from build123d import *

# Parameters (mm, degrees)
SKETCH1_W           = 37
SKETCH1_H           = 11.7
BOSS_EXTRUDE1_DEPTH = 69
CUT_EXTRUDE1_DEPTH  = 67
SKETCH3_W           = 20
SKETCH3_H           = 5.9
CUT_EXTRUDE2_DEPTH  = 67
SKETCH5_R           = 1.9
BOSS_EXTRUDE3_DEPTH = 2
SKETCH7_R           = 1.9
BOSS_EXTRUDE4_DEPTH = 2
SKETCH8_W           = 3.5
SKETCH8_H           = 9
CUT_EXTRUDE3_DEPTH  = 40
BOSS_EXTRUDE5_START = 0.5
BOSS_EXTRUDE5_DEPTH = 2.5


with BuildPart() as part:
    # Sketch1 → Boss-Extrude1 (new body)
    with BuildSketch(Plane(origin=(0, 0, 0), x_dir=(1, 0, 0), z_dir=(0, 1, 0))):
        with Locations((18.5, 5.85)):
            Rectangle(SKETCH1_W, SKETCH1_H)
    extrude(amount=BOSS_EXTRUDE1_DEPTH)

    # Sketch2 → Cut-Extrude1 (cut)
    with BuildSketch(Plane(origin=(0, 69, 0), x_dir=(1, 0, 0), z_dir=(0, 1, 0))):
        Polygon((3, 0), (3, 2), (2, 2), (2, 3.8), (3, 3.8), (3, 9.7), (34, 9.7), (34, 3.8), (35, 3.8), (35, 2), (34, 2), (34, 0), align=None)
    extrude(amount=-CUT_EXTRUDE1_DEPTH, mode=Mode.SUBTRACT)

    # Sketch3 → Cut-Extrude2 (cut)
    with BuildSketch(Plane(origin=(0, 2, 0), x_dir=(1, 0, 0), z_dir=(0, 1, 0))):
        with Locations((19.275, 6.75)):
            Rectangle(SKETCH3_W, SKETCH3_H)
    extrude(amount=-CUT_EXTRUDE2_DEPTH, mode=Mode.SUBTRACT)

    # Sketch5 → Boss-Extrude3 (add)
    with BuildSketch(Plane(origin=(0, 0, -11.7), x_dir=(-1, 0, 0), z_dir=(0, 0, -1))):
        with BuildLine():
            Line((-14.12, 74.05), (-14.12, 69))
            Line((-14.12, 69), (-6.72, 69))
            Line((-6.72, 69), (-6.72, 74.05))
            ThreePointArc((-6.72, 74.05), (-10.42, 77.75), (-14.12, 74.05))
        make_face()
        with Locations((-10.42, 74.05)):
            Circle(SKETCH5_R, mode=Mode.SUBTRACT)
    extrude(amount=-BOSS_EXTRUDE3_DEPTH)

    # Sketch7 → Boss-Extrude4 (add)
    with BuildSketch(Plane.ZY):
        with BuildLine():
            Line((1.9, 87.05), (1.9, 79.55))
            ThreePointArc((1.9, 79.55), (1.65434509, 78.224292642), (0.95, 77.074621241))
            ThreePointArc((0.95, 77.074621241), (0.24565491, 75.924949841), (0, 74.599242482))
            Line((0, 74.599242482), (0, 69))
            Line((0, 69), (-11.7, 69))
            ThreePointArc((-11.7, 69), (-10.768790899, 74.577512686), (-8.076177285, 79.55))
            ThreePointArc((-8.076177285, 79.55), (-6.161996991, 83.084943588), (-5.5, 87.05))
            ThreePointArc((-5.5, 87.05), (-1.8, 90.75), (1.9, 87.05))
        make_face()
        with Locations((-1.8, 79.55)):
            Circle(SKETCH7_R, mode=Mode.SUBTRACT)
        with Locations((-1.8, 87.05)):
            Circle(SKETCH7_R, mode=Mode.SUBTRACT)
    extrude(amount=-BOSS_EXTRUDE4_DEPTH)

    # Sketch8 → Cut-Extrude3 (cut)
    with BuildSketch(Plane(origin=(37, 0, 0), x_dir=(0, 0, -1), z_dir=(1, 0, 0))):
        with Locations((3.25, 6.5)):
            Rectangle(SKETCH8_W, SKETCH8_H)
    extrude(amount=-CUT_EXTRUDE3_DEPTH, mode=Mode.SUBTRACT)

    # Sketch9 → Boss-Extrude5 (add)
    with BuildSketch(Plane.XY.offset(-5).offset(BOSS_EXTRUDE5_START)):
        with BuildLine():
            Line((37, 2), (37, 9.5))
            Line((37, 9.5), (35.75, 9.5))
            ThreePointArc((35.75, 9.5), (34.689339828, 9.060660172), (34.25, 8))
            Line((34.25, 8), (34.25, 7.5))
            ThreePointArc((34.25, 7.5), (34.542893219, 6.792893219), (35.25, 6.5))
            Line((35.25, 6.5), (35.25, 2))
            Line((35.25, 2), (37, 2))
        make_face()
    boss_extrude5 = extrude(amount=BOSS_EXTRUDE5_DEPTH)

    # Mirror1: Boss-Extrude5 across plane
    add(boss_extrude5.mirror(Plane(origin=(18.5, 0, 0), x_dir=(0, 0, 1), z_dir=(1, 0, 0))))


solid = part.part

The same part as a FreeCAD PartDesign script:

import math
import FreeCAD as App
import Part
import Sketcher
Q = App.Units.Quantity


def add_polygon(sketch, points):
    """Adds a closed chain of lines whose ends are joined by coincident constraints."""
    first, n = sketch.GeometryCount, len(points)
    for a, b in zip(points, points[1:] + points[:1]):
        sketch.addGeometry(Part.LineSegment(App.Vector(*a, 0), App.Vector(*b, 0)), False)
    for i in range(n):
        sketch.addConstraint(Sketcher.Constraint("Coincident", first + i, 2, first + (i + 1) % n, 1))

doc = App.newDocument("Part")
params = doc.addObject("Spreadsheet::Sheet", "Params")
for row, (alias, value) in enumerate([
    ("sketch1_width", "37 mm"),
    ("sketch1_height", "11.7 mm"),
    ("pad1_length", "69 mm"),
    ("sketch2_width", "31 mm"),
    ("sketch2_width2", "1 mm"),
    ("sketch2_height", "2 mm"),
    ("sketch2_height2", "1.8 mm"),
    ("sketch2_height3", "5.9 mm"),
    ("pocket1_length", "67 mm"),
    ("sketch3_width", "20 mm"),
    ("sketch3_height", "5.9 mm"),
    ("pocket2_length", "67 mm"),
    ("sketch4_diameter", "3.8 mm"),
    ("sketch4_radius", "3.7 mm"),
    ("sketch4_height", "5.05 mm"),
    ("pad2_length", "2 mm"),
    ("sketch5_diameter", "3.8 mm"),
    ("sketch5_radius", "3.7 mm"),
    ("sketch5_width", "7.5 mm"),
    ("sketch5_height", "11.7 mm"),
    ("pad3_length", "2 mm"),
    ("sketch6_width", "9 mm"),
    ("sketch6_height", "3.5 mm"),
    ("pocket3_length", "40 mm"),
    ("sketch7_radius", "1 mm"),
    ("sketch7_radius2", "1.5 mm"),
    ("sketch7_height", "7.5 mm"),
    ("sketch7_height2", "0.5 mm"),
    ("sketch7_width", "1.25 mm"),
    ("pad4_length", "2.5 mm"),
], start=1):
    params.set(f"A{row}", alias)
    params.set(f"B{row}", "=" + value)
    params.setAlias(f"B{row}", alias)

body = doc.addObject("PartDesign::Body", "Body")

sketch1 = body.newObject("Sketcher::SketchObject", "Sketch")
sketch1.AttachmentSupport = (doc.getObject("XZ_Plane"), [""])
sketch1.MapMode = "FlatFace"
add_polygon(sketch1, [(0, -12), (0, 0), (37, 0), (37, -12)])
sketch1.addConstraint(Sketcher.Constraint("Vertical", 0))
sketch1.addConstraint(Sketcher.Constraint("Horizontal", 1))
sketch1.addConstraint(Sketcher.Constraint("Vertical", 2))
sketch1.addConstraint(Sketcher.Constraint("Horizontal", 3))
sketch1.addConstraint(Sketcher.Constraint("Coincident", 0, 2, -1, 1))
sketch1.addConstraint(Sketcher.Constraint("DistanceX", 1, 1, 1, 2, Q("37 mm")))
sketch1.addConstraint(Sketcher.Constraint("DistanceY", 0, 1, 0, 2, Q("11.7 mm")))
sketch1.setExpression("Constraints[9]", "Params.sketch1_width")
sketch1.setExpression("Constraints[10]", "Params.sketch1_height")
pad1 = body.newObject("PartDesign::Pad", "Pad")
pad1.Profile = sketch1
pad1.setExpression("Length", "Params.pad1_length")
pad1.Reversed = True

sketch2 = body.newObject("Sketcher::SketchObject", "Sketch001")
sketch2.AttachmentSupport = (doc.getObject("XZ_Plane"), [""])
sketch2.MapMode = "FlatFace"
sketch2.AttachmentOffset = App.Placement(App.Vector(0, 0, -69), App.Rotation())
add_polygon(sketch2, [(3, -2), (3, 0), (34, 0), (34, -2), (35, -2), (35, -3.8), (34, -3.8), (34, -9.7), (3, -9.7), (3, -3.8), (2, -3.8), (2, -2)])
sketch2.addConstraint(Sketcher.Constraint("Vertical", 0))
sketch2.addConstraint(Sketcher.Constraint("Horizontal", 1))
sketch2.addConstraint(Sketcher.Constraint("Vertical", 2))
sketch2.addConstraint(Sketcher.Constraint("Horizontal", 3))
sketch2.addConstraint(Sketcher.Constraint("Vertical", 4))
sketch2.addConstraint(Sketcher.Constraint("Horizontal", 5))
sketch2.addConstraint(Sketcher.Constraint("Vertical", 6))
sketch2.addConstraint(Sketcher.Constraint("Horizontal", 7))
sketch2.addConstraint(Sketcher.Constraint("Vertical", 8))
sketch2.addConstraint(Sketcher.Constraint("Horizontal", 9))
sketch2.addConstraint(Sketcher.Constraint("Vertical", 10))
sketch2.addConstraint(Sketcher.Constraint("Horizontal", 11))
sketch2.addConstraint(Sketcher.Constraint("PointOnObject", 0, 2, -1))
sketch2.addConstraint(Sketcher.Constraint("Horizontal", 5, 2, 8, 2))
sketch2.addConstraint(Sketcher.Constraint("Horizontal", 3, 2, 10, 2))
sketch2.addConstraint(Sketcher.Constraint("Vertical", 2, 2, 5, 2))
sketch2.addConstraint(Sketcher.Constraint("Vertical", 0, 2, 7, 2))
sketch2.addConstraint(Sketcher.Constraint("Equal", 5, 9))
sketch2.addConstraint(Sketcher.Constraint("DistanceX", 1, 1, 1, 2, Q("31 mm")))
sketch2.addConstraint(Sketcher.Constraint("DistanceX", 3, 1, 3, 2, Q("1 mm")))
sketch2.addConstraint(Sketcher.Constraint("DistanceY", 0, 1, 0, 2, Q("2 mm")))
sketch2.addConstraint(Sketcher.Constraint("DistanceY", 4, 2, 4, 1, Q("1.8 mm")))
sketch2.addConstraint(Sketcher.Constraint("DistanceY", 6, 2, 6, 1, Q("5.9 mm")))
sketch2.addConstraint(Sketcher.Constraint("DistanceX", -1, 1, 0, 2, Q("3 mm")))
sketch2.setExpression("Constraints[30]", "Params.sketch2_width")
sketch2.setExpression("Constraints[31]", "Params.sketch2_width2")
sketch2.setExpression("Constraints[32]", "Params.sketch2_height")
sketch2.setExpression("Constraints[33]", "Params.sketch2_height2")
sketch2.setExpression("Constraints[34]", "Params.sketch2_height3")
pocket1 = body.newObject("PartDesign::Pocket", "Pocket")
pocket1.Profile = sketch2
pocket1.setExpression("Length", "Params.pocket1_length")
pocket1.Reversed = True

sketch3 = body.newObject("Sketcher::SketchObject", "Sketch002")
sketch3.AttachmentSupport = (doc.getObject("XZ_Plane"), [""])
sketch3.MapMode = "FlatFace"
sketch3.AttachmentOffset = App.Placement(App.Vector(0, 0, -2), App.Rotation())
add_polygon(sketch3, [(9, -10), (9, -4), (29, -4), (29, -10)])
sketch3.addConstraint(Sketcher.Constraint("Vertical", 0))
sketch3.addConstraint(Sketcher.Constraint("Horizontal", 1))
sketch3.addConstraint(Sketcher.Constraint("Vertical", 2))
sketch3.addConstraint(Sketcher.Constraint("Horizontal", 3))
sketch3.addConstraint(Sketcher.Constraint("DistanceX", 1, 1, 1, 2, Q("20 mm")))
sketch3.addConstraint(Sketcher.Constraint("DistanceY", 0, 1, 0, 2, Q("5.9 mm")))
sketch3.addConstraint(Sketcher.Constraint("DistanceY", 0, 2, -1, 1, Q("3.8 mm")))
sketch3.addConstraint(Sketcher.Constraint("DistanceX", -1, 1, 0, 2, Q("9.275 mm")))
sketch3.setExpression("Constraints[8]", "Params.sketch3_width")
sketch3.setExpression("Constraints[9]", "Params.sketch3_height")
pocket2 = body.newObject("PartDesign::Pocket", "Pocket001")
pocket2.Profile = sketch3
pocket2.setExpression("Length", "Params.pocket2_length")
pocket2.Reversed = True

sketch4 = body.newObject("Sketcher::SketchObject", "Sketch003")
sketch4.AttachmentSupport = (doc.getObject("XY_Plane"), [""])
sketch4.MapMode = "FlatFace"
sketch4.AttachmentOffset = App.Placement(App.Vector(0, 0, -11.7), App.Rotation())
sketch4.addGeometry(Part.LineSegment(App.Vector(14.1, 74, 0), App.Vector(14.1, 69, 0)), False)
sketch4.addGeometry(Part.LineSegment(App.Vector(14.1, 69, 0), App.Vector(6.7, 69, 0)), False)
sketch4.addGeometry(Part.LineSegment(App.Vector(6.7, 69, 0), App.Vector(6.7, 74, 0)), False)
sketch4.addGeometry(Part.ArcOfCircle(Part.Circle(App.Vector(10.4, 74, 0), App.Vector(0, 0, 1), 3.7), math.radians(0), math.radians(180)), False)
sketch4.addGeometry(Part.Circle(App.Vector(10.4, 74, 0), App.Vector(0, 0, 1), 1.9), False)
sketch4.addConstraint(Sketcher.Constraint("Coincident", 0, 2, 1, 1))
sketch4.addConstraint(Sketcher.Constraint("Coincident", 1, 2, 2, 1))
sketch4.addConstraint(Sketcher.Constraint("Tangent", 2, 2, 3, 2))
sketch4.addConstraint(Sketcher.Constraint("Tangent", 3, 1, 0, 1))
sketch4.addConstraint(Sketcher.Constraint("Vertical", 0))
sketch4.addConstraint(Sketcher.Constraint("Horizontal", 1))
sketch4.addConstraint(Sketcher.Constraint("Vertical", 2))
sketch4.addConstraint(Sketcher.Constraint("Coincident", 4, 3, 3, 3))
sketch4.addConstraint(Sketcher.Constraint("Diameter", 4, Q("3.8 mm")))
sketch4.addConstraint(Sketcher.Constraint("Radius", 3, Q("3.7 mm")))
sketch4.addConstraint(Sketcher.Constraint("DistanceY", -1, 1, 0, 2, Q("69 mm")))
sketch4.addConstraint(Sketcher.Constraint("DistanceY", 0, 2, 0, 1, Q("5.05 mm")))
sketch4.addConstraint(Sketcher.Constraint("DistanceX", -1, 1, 3, 3, Q("10.42 mm")))
sketch4.setExpression("Constraints[8]", "Params.sketch4_diameter")
sketch4.setExpression("Constraints[9]", "Params.sketch4_radius")
sketch4.setExpression("Constraints[11]", "Params.sketch4_height")
pad2 = body.newObject("PartDesign::Pad", "Pad001")
pad2.Profile = sketch4
pad2.setExpression("Length", "Params.pad2_length")

sketch5 = body.newObject("Sketcher::SketchObject", "Sketch004")
sketch5.AttachmentSupport = (doc.getObject("YZ_Plane"), [""])
sketch5.MapMode = "FlatFace"
sketch5.addGeometry(Part.LineSegment(App.Vector(79.5, 1.9, 0), App.Vector(87, 1.9, 0)), False)
sketch5.addGeometry(Part.ArcOfCircle(Part.Circle(App.Vector(87, -1.8, 0), App.Vector(0, 0, 1), 3.7), math.radians(-90), math.radians(90)), False)
sketch5.addGeometry(Part.ArcOfCircle(Part.Circle(App.Vector(87, -17.7, 0), App.Vector(0, 0, 1), 12.2), math.radians(90), math.radians(128)), False)
sketch5.addGeometry(Part.ArcOfCircle(Part.Circle(App.Vector(69, 5.5, 0), App.Vector(0, 0, 1), 17.2), math.radians(-90), math.radians(-52)), False)
sketch5.addGeometry(Part.LineSegment(App.Vector(69, -11.7, 0), App.Vector(69, 0, 0)), False)
sketch5.addGeometry(Part.LineSegment(App.Vector(69, 0, 0), App.Vector(74.6, 0, 0)), False)
sketch5.addGeometry(Part.ArcOfCircle(Part.Circle(App.Vector(74.6, 3.7, 0), App.Vector(0, 0, 1), 3.7), math.radians(-90), math.radians(-48)), False)
sketch5.addGeometry(Part.ArcOfCircle(Part.Circle(App.Vector(79.5, -1.8, 0), App.Vector(0, 0, 1), 3.7), math.radians(90), math.radians(132)), False)
sketch5.addGeometry(Part.Circle(App.Vector(79.5, -1.8, 0), App.Vector(0, 0, 1), 1.9), False)
sketch5.addGeometry(Part.Circle(App.Vector(87, -1.8, 0), App.Vector(0, 0, 1), 1.9), False)
sketch5.addConstraint(Sketcher.Constraint("Tangent", 0, 2, 1, 2))
sketch5.addConstraint(Sketcher.Constraint("Tangent", 1, 1, 2, 1))
sketch5.addConstraint(Sketcher.Constraint("Tangent", 2, 2, 3, 2))
sketch5.addConstraint(Sketcher.Constraint("Coincident", 3, 1, 4, 1))
sketch5.addConstraint(Sketcher.Constraint("Coincident", 4, 2, 5, 1))
sketch5.addConstraint(Sketcher.Constraint("Tangent", 5, 2, 6, 1))
sketch5.addConstraint(Sketcher.Constraint("Tangent", 6, 2, 7, 2))
sketch5.addConstraint(Sketcher.Constraint("Tangent", 7, 1, 0, 1))
sketch5.addConstraint(Sketcher.Constraint("Horizontal", 0))
sketch5.addConstraint(Sketcher.Constraint("Vertical", 4))
sketch5.addConstraint(Sketcher.Constraint("Horizontal", 5))
sketch5.addConstraint(Sketcher.Constraint("Coincident", 8, 3, 7, 3))
sketch5.addConstraint(Sketcher.Constraint("Coincident", 9, 3, 1, 3))
sketch5.addConstraint(Sketcher.Constraint("Equal", 1, 6))
sketch5.addConstraint(Sketcher.Constraint("Equal", 6, 7))
sketch5.addConstraint(Sketcher.Constraint("Equal", 8, 9))
sketch5.addConstraint(Sketcher.Constraint("PointOnObject", 4, 2, -1))
sketch5.addConstraint(Sketcher.Constraint("Vertical", 1, 3, 2, 3))
sketch5.addConstraint(Sketcher.Constraint("Vertical", 8, 3, 2, 2))
sketch5.addConstraint(Sketcher.Constraint("Diameter", 8, Q("3.8 mm")))
sketch5.addConstraint(Sketcher.Constraint("Radius", 1, Q("3.7 mm")))
sketch5.addConstraint(Sketcher.Constraint("DistanceX", 0, 1, 0, 2, Q("7.5 mm")))
sketch5.addConstraint(Sketcher.Constraint("DistanceY", 4, 1, 4, 2, Q("11.7 mm")))
sketch5.addConstraint(Sketcher.Constraint("DistanceX", -1, 1, 3, 3, Q("69 mm")))
sketch5.addConstraint(Sketcher.Constraint("DistanceX", -1, 1, 3, 1, Q("69 mm")))
sketch5.addConstraint(Sketcher.Constraint("DistanceY", 1, 3, -1, 1, Q("1.8 mm")))
sketch5.addConstraint(Sketcher.Constraint("DistanceX", -1, 1, 1, 3, Q("87.05 mm")))
sketch5.setExpression("Constraints[19]", "Params.sketch5_diameter")
sketch5.setExpression("Constraints[20]", "Params.sketch5_radius")
sketch5.setExpression("Constraints[21]", "Params.sketch5_width")
sketch5.setExpression("Constraints[22]", "Params.sketch5_height")
pad3 = body.newObject("PartDesign::Pad", "Pad002")
pad3.Profile = sketch5
pad3.setExpression("Length", "Params.pad3_length")

sketch6 = body.newObject("Sketcher::SketchObject", "Sketch005")
sketch6.AttachmentSupport = (doc.getObject("YZ_Plane"), [""])
sketch6.MapMode = "FlatFace"
sketch6.AttachmentOffset = App.Placement(App.Vector(0, 0, 37), App.Rotation())
add_polygon(sketch6, [(11, -1.5), (2, -1.5), (2, -5), (11, -5)])
sketch6.addConstraint(Sketcher.Constraint("Horizontal", 0))
sketch6.addConstraint(Sketcher.Constraint("Vertical", 1))
sketch6.addConstraint(Sketcher.Constraint("Horizontal", 2))
sketch6.addConstraint(Sketcher.Constraint("Vertical", 3))
sketch6.addConstraint(Sketcher.Constraint("DistanceX", 0, 2, 0, 1, Q("9 mm")))
sketch6.addConstraint(Sketcher.Constraint("DistanceY", 1, 2, 1, 1, Q("3.5 mm")))
sketch6.addConstraint(Sketcher.Constraint("DistanceX", -1, 1, 0, 2, Q("2 mm")))
sketch6.addConstraint(Sketcher.Constraint("DistanceY", 1, 2, -1, 1, Q("5 mm")))
sketch6.setExpression("Constraints[8]", "Params.sketch6_width")
sketch6.setExpression("Constraints[9]", "Params.sketch6_height")
pocket3 = body.newObject("PartDesign::Pocket", "Pocket002")
pocket3.Profile = sketch6
pocket3.setExpression("Length", "Params.pocket3_length")

sketch7 = body.newObject("Sketcher::SketchObject", "Sketch006")
sketch7.AttachmentSupport = (doc.getObject("XY_Plane"), [""])
sketch7.MapMode = "FlatFace"
sketch7.AttachmentOffset = App.Placement(App.Vector(0, 0, -4.5), App.Rotation())
sketch7.addGeometry(Part.LineSegment(App.Vector(37, 2, 0), App.Vector(37, 9.5, 0)), False)
sketch7.addGeometry(Part.LineSegment(App.Vector(37, 9.5, 0), App.Vector(35.8, 9.5, 0)), False)
sketch7.addGeometry(Part.ArcOfCircle(Part.Circle(App.Vector(35.7, 8, 0), App.Vector(0, 0, 1), 1.5), math.radians(90), math.radians(180)), False)
sketch7.addGeometry(Part.LineSegment(App.Vector(34.2, 8, 0), App.Vector(34.2, 7.5, 0)), False)
sketch7.addGeometry(Part.ArcOfCircle(Part.Circle(App.Vector(35.3, 7.5, 0), App.Vector(0, 0, 1), 1), math.radians(-180), math.radians(-90)), False)
sketch7.addGeometry(Part.LineSegment(App.Vector(35.2, 6.5, 0), App.Vector(35.2, 2, 0)), False)
sketch7.addGeometry(Part.LineSegment(App.Vector(35.2, 2, 0), App.Vector(37, 2, 0)), False)
sketch7.addConstraint(Sketcher.Constraint("Coincident", 0, 2, 1, 1))
sketch7.addConstraint(Sketcher.Constraint("Tangent", 1, 2, 2, 1))
sketch7.addConstraint(Sketcher.Constraint("Tangent", 2, 2, 3, 1))
sketch7.addConstraint(Sketcher.Constraint("Tangent", 3, 2, 4, 1))
sketch7.addConstraint(Sketcher.Constraint("Coincident", 4, 2, 5, 1))
sketch7.addConstraint(Sketcher.Constraint("Coincident", 5, 2, 6, 1))
sketch7.addConstraint(Sketcher.Constraint("Coincident", 6, 2, 0, 1))
sketch7.addConstraint(Sketcher.Constraint("Vertical", 0))
sketch7.addConstraint(Sketcher.Constraint("Horizontal", 1))
sketch7.addConstraint(Sketcher.Constraint("Vertical", 3))
sketch7.addConstraint(Sketcher.Constraint("Vertical", 5))
sketch7.addConstraint(Sketcher.Constraint("Horizontal", 6))
sketch7.addConstraint(Sketcher.Constraint("Radius", 4, Q("1 mm")))
sketch7.addConstraint(Sketcher.Constraint("Radius", 2, Q("1.5 mm")))
sketch7.addConstraint(Sketcher.Constraint("DistanceY", 0, 1, 0, 2, Q("7.5 mm")))
sketch7.addConstraint(Sketcher.Constraint("DistanceY", 3, 2, 3, 1, Q("0.5 mm")))
sketch7.addConstraint(Sketcher.Constraint("DistanceY", -1, 1, 2, 3, Q("8 mm")))
sketch7.addConstraint(Sketcher.Constraint("DistanceX", -1, 1, 0, 2, Q("37 mm")))
sketch7.addConstraint(Sketcher.Constraint("DistanceX", 3, 2, 4, 2, Q("1 mm")))
sketch7.addConstraint(Sketcher.Constraint("DistanceX", 1, 2, 1, 1, Q("1.25 mm")))
sketch7.setExpression("Constraints[12]", "Params.sketch7_radius")
sketch7.setExpression("Constraints[13]", "Params.sketch7_radius2")
sketch7.setExpression("Constraints[14]", "Params.sketch7_height")
sketch7.setExpression("Constraints[15]", "Params.sketch7_height2")
sketch7.setExpression("Constraints[19]", "Params.sketch7_width")
pad4 = body.newObject("PartDesign::Pad", "Pad003")
pad4.Profile = sketch7
pad4.setExpression("Length", "Params.pad4_length")
doc.recompute()

datumplane = body.newObject("PartDesign::Plane", "DatumPlane")
datumplane.AttachmentSupport = (doc.getObject("YZ_Plane"), [""])
datumplane.MapMode = "FlatFace"
datumplane.AttachmentOffset = App.Placement(App.Vector(0, 0, 18.5), App.Rotation())
mirrored = body.newObject("PartDesign::Mirrored", "Mirrored")
mirrored.Originals = [pad4]
mirrored.MirrorPlane = (datumplane, [""])
body.Tip = mirrored

doc.recompute()
